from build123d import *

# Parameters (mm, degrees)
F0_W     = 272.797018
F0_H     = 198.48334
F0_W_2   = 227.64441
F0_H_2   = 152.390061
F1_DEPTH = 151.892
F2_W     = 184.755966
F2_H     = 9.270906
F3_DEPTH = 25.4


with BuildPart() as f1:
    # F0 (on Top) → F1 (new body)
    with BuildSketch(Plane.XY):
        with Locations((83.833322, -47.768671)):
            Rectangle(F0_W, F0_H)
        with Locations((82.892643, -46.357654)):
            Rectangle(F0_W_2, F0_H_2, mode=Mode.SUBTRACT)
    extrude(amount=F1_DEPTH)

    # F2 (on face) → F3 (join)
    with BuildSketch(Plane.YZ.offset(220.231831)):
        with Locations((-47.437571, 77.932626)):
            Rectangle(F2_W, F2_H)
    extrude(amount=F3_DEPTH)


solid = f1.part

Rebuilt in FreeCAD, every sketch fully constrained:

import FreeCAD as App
import Part
import Sketcher
from FreeCAD import Vector
Q = App.Units.Quantity


def add_polygon(sketch, points):
    """Adds a closed chain of lines whose ends are joined by coincident constraints."""
    first, n = sketch.GeometryCount, len(points)
    for a, b in zip(points, points[1:] + points[:1]):
        sketch.addGeometry(Part.LineSegment(App.Vector(*a, 0), App.Vector(*b, 0)), False)
    for i in range(n):
        sketch.addConstraint(Sketcher.Constraint("Coincident", first + i, 2, first + (i + 1) % n, 1))

doc = App.newDocument("Part")
params = doc.addObject("Spreadsheet::Sheet", "Params")
for row, (alias, value) in enumerate([
    ("pad1_length", "5.98 in"),
    ("pad2_length", "1 in"),
], start=1):
    params.set(f"A{row}", alias)
    params.set(f"B{row}", "=" + value)
    params.setAlias(f"B{row}", alias)

body = doc.addObject("PartDesign::Body", "Body")

# Sketch on XY plane
sketch1 = body.newObject("Sketcher::SketchObject", "Sketch")
sketch1.AttachmentSupport = (doc.getObject("XY_Plane"), [""])
sketch1.MapMode = "FlatFace"
add_polygon(sketch1, [(-53, 51), (-53, -147), (220, -147), (220, 51)])  # lines 0-3
add_polygon(sketch1, [(197, -123), (-31, -123), (-31, 30), (197, 30)])  # lines 4-7
sketch1.addConstraint(Sketcher.Constraint("Vertical", 0))
sketch1.addConstraint(Sketcher.Constraint("Horizontal", 1))
sketch1.addConstraint(Sketcher.Constraint("Vertical", 2))
sketch1.addConstraint(Sketcher.Constraint("Horizontal", 3))
sketch1.addConstraint(Sketcher.Constraint("Horizontal", 4))
sketch1.addConstraint(Sketcher.Constraint("Vertical", 5))
sketch1.addConstraint(Sketcher.Constraint("Horizontal", 6))
sketch1.addConstraint(Sketcher.Constraint("Vertical", 7))
sketch1.addConstraint(Sketcher.Constraint("DistanceY", -1, 1, 5, 2, Q("1.1746999 in")))
sketch1.addConstraint(Sketcher.Constraint("DistanceY", 0, 2, 4, 2, Q("0.9628999 in")))
sketch1.addConstraint(Sketcher.Constraint("DistanceX", 1, 1, 1, 2, Q("272.797018 mm")))
sketch1.addConstraint(Sketcher.Constraint("DistanceX", 4, 2, 4, 1, Q("227.64441 mm")))
sketch1.addConstraint(Sketcher.Constraint("DistanceY", 0, 2, 0, 1, Q("198.48334 mm")))
sketch1.addConstraint(Sketcher.Constraint("DistanceY", 5, 1, 5, 2, Q("152.390061 mm")))
sketch1.addConstraint(Sketcher.Constraint("DistanceX", -1, 1, 1, 2, Q("220.231831 mm")))
sketch1.addConstraint(Sketcher.Constraint("DistanceX", 4, 2, -1, 1, Q("30.929562 mm")))
pad1 = body.newObject("PartDesign::Pad", "Pad")
pad1.Profile = sketch1
pad1.setExpression("Length", "Params.pad1_length")

# Sketch on YZ plane
sketch2 = body.newObject("Sketcher::SketchObject", "Sketch001")
sketch2.AttachmentSupport = (doc.getObject("YZ_Plane"), [""])
sketch2.MapMode = "FlatFace"
sketch2.AttachmentOffset = App.Placement(Vector(0, 0, 220.231831), App.Rotation())
add_polygon(sketch2, [(-140, 83), (-140, 73), (45, 73), (45, 83)])  # lines 0-3
sketch2.addConstraint(Sketcher.Constraint("Vertical", 0))
sketch2.addConstraint(Sketcher.Constraint("Horizontal", 1))
sketch2.addConstraint(Sketcher.Constraint("Vertical", 2))
sketch2.addConstraint(Sketcher.Constraint("Horizontal", 3))
sketch2.addConstraint(Sketcher.Constraint("DistanceX", 1, 1, 1, 2, Q("184.755966 mm")))
sketch2.addConstraint(Sketcher.Constraint("DistanceY", 0, 2, 0, 1, Q("9.270906 mm")))
sketch2.addConstraint(Sketcher.Constraint("DistanceY", -1, 1, 2, 2, Q("82.568079 mm")))
sketch2.addConstraint(Sketcher.Constraint("DistanceX", 0, 2, -1, 1, Q("139.815554 mm")))
pad2 = body.newObject("PartDesign::Pad", "Pad001")
pad2.Profile = sketch2
pad2.setExpression("Length", "Params.pad2_length")

doc.recompute()
